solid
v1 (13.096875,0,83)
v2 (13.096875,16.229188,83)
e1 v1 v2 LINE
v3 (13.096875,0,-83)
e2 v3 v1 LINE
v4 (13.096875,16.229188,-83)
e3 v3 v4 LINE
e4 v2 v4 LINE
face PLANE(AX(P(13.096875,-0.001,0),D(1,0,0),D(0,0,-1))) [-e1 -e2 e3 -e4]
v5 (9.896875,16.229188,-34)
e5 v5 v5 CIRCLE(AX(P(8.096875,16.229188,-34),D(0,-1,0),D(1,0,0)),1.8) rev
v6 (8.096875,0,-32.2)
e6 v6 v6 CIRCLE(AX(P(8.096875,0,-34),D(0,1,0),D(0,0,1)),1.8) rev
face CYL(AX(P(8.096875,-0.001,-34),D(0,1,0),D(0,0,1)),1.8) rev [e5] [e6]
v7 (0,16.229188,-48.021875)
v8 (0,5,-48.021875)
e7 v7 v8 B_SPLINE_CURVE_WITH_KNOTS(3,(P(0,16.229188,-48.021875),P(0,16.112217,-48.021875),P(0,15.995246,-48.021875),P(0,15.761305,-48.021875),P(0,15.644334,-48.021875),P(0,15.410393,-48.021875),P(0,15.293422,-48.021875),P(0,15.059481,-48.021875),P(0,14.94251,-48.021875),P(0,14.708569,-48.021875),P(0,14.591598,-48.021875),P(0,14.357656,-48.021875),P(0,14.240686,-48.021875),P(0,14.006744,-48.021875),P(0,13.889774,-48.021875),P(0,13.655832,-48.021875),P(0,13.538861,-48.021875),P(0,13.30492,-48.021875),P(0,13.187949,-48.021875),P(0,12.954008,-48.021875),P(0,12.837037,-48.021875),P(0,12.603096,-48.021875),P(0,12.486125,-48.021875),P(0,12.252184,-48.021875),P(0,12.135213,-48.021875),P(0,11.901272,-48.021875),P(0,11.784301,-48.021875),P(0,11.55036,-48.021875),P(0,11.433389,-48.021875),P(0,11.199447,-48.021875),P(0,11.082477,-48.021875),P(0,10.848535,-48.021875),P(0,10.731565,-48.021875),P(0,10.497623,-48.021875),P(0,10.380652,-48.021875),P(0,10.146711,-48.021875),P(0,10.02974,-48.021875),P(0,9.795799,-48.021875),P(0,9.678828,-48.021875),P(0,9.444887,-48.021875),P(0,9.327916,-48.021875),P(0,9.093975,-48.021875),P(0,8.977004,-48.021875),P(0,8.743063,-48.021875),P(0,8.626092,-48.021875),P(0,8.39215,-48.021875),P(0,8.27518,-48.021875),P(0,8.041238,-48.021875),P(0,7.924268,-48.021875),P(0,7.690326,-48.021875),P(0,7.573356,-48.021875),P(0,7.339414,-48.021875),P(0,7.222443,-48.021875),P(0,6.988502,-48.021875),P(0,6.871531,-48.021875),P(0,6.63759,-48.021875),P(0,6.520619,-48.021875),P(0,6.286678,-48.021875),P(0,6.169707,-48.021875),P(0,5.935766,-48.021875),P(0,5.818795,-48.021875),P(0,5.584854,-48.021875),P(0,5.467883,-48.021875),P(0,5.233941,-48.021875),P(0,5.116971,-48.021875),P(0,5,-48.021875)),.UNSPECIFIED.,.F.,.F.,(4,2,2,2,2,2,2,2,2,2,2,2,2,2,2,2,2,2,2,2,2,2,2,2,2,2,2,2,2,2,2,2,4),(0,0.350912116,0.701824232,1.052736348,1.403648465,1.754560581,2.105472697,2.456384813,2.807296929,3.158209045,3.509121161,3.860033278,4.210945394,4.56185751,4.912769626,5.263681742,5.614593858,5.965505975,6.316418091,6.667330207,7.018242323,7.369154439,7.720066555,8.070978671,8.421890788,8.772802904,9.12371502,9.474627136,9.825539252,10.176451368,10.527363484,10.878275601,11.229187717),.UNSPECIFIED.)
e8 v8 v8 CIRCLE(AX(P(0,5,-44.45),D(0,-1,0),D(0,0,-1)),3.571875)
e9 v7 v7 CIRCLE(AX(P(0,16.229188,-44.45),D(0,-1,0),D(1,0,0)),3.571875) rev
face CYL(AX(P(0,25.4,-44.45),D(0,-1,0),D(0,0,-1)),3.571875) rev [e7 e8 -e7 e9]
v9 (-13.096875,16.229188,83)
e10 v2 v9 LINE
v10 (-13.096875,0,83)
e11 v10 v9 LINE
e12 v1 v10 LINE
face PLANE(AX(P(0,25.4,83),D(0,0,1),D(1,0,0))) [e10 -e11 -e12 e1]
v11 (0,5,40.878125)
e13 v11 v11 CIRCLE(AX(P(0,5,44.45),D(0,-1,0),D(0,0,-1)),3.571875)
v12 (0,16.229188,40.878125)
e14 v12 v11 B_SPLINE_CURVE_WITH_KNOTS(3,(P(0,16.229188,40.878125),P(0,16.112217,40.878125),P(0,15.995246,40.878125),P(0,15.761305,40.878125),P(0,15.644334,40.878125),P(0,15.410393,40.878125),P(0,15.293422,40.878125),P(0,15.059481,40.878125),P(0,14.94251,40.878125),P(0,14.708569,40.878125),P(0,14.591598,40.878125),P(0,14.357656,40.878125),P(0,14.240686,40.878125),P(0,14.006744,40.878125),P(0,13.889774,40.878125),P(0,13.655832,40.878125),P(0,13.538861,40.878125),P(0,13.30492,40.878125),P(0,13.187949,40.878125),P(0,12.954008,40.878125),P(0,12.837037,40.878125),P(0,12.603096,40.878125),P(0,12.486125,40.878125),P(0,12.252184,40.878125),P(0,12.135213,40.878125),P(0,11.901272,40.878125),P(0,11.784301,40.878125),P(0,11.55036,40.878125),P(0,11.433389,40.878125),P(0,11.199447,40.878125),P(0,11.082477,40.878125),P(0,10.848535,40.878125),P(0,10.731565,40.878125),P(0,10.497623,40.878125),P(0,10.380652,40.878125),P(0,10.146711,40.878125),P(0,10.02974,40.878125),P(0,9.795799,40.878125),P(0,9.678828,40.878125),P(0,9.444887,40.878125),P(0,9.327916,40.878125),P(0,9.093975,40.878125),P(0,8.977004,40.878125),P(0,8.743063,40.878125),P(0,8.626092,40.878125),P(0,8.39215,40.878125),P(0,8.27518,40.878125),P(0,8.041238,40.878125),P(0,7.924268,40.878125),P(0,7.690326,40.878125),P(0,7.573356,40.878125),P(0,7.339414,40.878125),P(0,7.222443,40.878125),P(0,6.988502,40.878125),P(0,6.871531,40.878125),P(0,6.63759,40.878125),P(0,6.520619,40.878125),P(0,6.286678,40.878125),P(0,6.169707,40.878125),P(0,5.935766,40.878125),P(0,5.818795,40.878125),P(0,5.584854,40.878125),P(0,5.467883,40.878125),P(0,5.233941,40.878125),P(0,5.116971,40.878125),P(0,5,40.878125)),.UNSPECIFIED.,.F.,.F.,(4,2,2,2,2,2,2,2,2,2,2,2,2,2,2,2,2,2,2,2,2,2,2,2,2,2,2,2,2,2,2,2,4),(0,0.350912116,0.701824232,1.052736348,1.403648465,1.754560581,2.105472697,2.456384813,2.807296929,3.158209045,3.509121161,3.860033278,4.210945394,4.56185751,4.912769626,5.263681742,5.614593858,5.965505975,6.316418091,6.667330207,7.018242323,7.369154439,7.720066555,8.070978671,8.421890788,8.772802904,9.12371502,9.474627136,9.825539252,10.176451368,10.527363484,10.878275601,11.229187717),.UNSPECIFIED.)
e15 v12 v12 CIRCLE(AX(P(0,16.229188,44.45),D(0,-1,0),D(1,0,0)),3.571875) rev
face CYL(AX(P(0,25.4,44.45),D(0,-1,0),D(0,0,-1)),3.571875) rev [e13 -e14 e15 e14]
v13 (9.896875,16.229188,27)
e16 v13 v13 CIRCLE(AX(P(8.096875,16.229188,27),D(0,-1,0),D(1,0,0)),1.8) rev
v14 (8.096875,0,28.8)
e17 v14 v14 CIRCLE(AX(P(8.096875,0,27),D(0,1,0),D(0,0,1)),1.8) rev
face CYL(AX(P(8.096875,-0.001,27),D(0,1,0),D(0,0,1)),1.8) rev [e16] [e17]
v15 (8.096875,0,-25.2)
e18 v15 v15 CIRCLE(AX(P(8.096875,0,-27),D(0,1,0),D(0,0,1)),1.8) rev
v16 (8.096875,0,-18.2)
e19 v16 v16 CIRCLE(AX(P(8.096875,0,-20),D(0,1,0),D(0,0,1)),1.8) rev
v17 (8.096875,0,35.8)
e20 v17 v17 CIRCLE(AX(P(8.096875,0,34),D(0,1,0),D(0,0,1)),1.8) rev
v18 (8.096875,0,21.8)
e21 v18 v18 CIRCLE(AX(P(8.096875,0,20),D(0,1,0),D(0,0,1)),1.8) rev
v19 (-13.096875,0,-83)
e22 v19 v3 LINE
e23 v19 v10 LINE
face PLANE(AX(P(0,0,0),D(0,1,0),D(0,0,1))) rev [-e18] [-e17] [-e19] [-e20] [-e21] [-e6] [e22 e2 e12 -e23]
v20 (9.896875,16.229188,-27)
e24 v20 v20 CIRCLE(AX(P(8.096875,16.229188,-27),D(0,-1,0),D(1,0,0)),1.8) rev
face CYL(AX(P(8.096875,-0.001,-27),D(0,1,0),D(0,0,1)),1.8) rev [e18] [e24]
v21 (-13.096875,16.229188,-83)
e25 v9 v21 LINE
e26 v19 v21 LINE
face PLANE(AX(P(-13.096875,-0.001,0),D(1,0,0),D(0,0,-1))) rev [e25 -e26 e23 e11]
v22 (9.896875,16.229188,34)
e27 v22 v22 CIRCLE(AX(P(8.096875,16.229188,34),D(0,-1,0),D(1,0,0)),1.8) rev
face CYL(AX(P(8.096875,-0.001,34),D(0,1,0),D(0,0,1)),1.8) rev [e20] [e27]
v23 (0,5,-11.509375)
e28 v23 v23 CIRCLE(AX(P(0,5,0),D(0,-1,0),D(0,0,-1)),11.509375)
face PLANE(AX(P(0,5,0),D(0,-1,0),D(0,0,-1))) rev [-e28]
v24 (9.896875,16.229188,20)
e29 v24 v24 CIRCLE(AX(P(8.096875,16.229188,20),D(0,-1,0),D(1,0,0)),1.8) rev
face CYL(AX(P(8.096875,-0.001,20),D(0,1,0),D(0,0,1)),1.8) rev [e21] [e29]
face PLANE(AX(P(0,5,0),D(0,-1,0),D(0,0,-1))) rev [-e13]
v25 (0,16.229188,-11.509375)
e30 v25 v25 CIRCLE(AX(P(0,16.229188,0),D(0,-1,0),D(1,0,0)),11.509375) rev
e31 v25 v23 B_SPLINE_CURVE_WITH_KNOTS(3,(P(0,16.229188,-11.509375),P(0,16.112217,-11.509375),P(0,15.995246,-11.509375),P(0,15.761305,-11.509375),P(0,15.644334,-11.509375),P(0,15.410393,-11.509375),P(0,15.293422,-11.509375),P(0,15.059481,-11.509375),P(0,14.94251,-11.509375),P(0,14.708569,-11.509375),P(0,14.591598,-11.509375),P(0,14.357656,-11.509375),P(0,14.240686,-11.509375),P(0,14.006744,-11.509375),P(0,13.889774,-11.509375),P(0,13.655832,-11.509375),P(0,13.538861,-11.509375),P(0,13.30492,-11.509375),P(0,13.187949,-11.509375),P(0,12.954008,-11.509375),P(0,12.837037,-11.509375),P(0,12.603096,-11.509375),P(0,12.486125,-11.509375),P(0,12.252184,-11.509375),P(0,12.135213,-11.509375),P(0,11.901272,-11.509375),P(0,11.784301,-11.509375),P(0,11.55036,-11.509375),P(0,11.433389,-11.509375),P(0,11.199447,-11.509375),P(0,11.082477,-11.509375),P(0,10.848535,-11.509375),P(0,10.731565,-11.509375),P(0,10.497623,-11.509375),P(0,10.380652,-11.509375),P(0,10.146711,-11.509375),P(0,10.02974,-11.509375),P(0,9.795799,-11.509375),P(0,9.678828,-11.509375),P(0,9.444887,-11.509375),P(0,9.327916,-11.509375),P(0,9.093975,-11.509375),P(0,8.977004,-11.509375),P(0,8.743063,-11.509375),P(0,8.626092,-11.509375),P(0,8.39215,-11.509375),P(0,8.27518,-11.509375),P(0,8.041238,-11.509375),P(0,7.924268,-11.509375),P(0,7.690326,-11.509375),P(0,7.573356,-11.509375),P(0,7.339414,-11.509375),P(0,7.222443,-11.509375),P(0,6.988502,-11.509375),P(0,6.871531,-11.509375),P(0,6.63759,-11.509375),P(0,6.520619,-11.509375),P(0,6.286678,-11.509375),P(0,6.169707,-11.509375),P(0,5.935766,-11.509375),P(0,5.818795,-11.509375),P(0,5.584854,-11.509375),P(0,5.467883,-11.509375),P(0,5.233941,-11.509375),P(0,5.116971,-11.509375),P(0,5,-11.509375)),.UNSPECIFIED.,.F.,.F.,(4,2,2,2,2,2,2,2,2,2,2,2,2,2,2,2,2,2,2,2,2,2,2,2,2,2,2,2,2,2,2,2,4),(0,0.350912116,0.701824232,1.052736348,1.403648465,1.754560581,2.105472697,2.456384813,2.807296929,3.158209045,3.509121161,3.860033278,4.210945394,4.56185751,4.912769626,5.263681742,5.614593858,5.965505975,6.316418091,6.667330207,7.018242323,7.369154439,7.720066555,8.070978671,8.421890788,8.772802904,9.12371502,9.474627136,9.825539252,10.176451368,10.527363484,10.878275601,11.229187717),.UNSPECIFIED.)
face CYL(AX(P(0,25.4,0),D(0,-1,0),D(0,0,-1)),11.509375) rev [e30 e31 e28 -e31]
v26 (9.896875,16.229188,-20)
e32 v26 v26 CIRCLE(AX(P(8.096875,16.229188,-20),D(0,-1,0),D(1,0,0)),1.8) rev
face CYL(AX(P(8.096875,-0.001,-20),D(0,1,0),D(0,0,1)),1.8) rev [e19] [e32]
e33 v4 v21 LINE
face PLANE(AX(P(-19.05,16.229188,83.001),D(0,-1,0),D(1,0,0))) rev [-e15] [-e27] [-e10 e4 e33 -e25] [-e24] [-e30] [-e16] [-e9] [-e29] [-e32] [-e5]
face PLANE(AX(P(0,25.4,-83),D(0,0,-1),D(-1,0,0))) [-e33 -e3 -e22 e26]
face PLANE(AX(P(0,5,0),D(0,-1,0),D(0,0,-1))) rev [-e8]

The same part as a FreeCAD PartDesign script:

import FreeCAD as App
import Part
import Sketcher
Q = App.Units.Quantity

doc = App.newDocument("Part")
body = doc.addObject("PartDesign::Body", "Body")

sketch1 = doc.addObject("Sketcher::SketchObject", "Sketch")
body.addObject(sketch1)
sketch1.AttachmentSupport = (doc.XZ_Plane, [""])
sketch1.MapMode = "FlatFace"
sketch1.addGeometry([
    Part.LineSegment(App.Vector(19.05, 83, 0), App.Vector(19.05, -83, 0)),
    Part.LineSegment(App.Vector(19.05, -83, 0), App.Vector(-19.05, -83, 0)),
    Part.LineSegment(App.Vector(-19.05, -83, 0), App.Vector(-19.05, 83, 0)),
    Part.LineSegment(App.Vector(-19.05, 83, 0), App.Vector(19.05, 83, 0)),
    Part.Circle(App.Vector(0, -44.45, 0), App.Vector(0, 0, 1), 3.571875),
    Part.Circle(App.Vector(0, 0, 0), App.Vector(0, 0, 1), 11.509375),
    Part.Circle(App.Vector(0, 44.45, 0), App.Vector(0, 0, 1), 3.571875),
], False)
sketch1.addConstraint([
    Sketcher.Constraint("Coincident", 0, 2, 1, 1),
    Sketcher.Constraint("Coincident", 1, 2, 2, 1),
    Sketcher.Constraint("Coincident", 2, 2, 3, 1),
    Sketcher.Constraint("Coincident", 3, 2, 0, 1),
    Sketcher.Constraint("Vertical", 0),
    Sketcher.Constraint("Horizontal", 1),
    Sketcher.Constraint("Vertical", 2),
    Sketcher.Constraint("Horizontal", 3),
    Sketcher.Constraint("Coincident", 5, 3, -1, 1),
    Sketcher.Constraint("Equal", 4, 6),
    Sketcher.Constraint("Symmetric", 4, 3, 6, 3, -1, 1),
    Sketcher.Constraint("Symmetric", 0, 2, 2, 2, -1, 1),
    Sketcher.Constraint("PointOnObject", 4, 3, -2),
    Sketcher.Constraint("Diameter", 4, Q("0.28125 in")),
    Sketcher.Constraint("Diameter", 5, Q("0.90625 in")),
    Sketcher.Constraint("DistanceX", 1, 2, 1, 1, Q("1.5 in")),
    Sketcher.Constraint("DistanceY", 4, 3, 6, 3, Q("3.5 in")),
    Sketcher.Constraint("DistanceY", 0, 2, 0, 1, 166.0),
])
pad1 = doc.addObject("PartDesign::Pad", "Pad")
body.addObject(pad1)
pad1.Profile = sketch1
pad1.Length = Q("1 in")
pad1.Reversed = True

sketch2 = doc.addObject("Sketcher::SketchObject", "Sketch001")
body.addObject(sketch2)
sketch2.AttachmentSupport = (doc.XY_Plane, [""])
sketch2.MapMode = "FlatFace"
sketch2.AttachmentOffset = App.Placement(App.Vector(0, 0, -83), App.Rotation())
sketch2.addGeometry([
    Part.LineSegment(App.Vector(19.05, 25.4, 0), App.Vector(19.05, 16.229188, 0)),
    Part.LineSegment(App.Vector(19.05, 16.229188, 0), App.Vector(-19.05, 16.229188, 0)),
    Part.LineSegment(App.Vector(-19.05, 16.229188, 0), App.Vector(-19.05, 25.4, 0)),
    Part.LineSegment(App.Vector(-19.05, 25.4, 0), App.Vector(19.05, 25.4, 0)),
], False)
sketch2.addConstraint([
    Sketcher.Constraint("Coincident", 0, 2, 1, 1),
    Sketcher.Constraint("Coincident", 1, 2, 2, 1),
    Sketcher.Constraint("Coincident", 2, 2, 3, 1),
    Sketcher.Constraint("Coincident", 3, 2, 0, 1),
    Sketcher.Constraint("Vertical", 0),
    Sketcher.Constraint("Horizontal", 1),
    Sketcher.Constraint("Vertical", 2),
    Sketcher.Constraint("Horizontal", 3),
    Sketcher.Constraint("DistanceX", 1, 2, 1, 1, Q("1.5 in")),
    Sketcher.Constraint("DistanceY", -1, 1, 2, 2, Q("1 in")),
    Sketcher.Constraint("DistanceX", -1, 1, 0, 2, Q("0.75 in")),
    Sketcher.Constraint("DistanceY", 0, 2, 0, 1, 9.170812),
])
pocket1 = doc.addObject("PartDesign::Pocket", "Pocket")
body.addObject(pocket1)
pocket1.Profile = sketch2
pocket1.Type = "UpToFirst"
pocket1.Reversed = True

sketch3 = doc.addObject("Sketcher::SketchObject", "Sketch002")
body.addObject(sketch3)
sketch3.AttachmentSupport = (doc.XZ_Plane, [""])
sketch3.MapMode = "FlatFace"
sketch3.AttachmentOffset = App.Placement(App.Vector(0, 0, -1 * 25.4), App.Rotation())
sketch3.addGeometry(Part.Circle(App.Vector(8.096875, 34, 0), App.Vector(0, 0, 1), 1.8), False)
sketch3.addConstraint([
    Sketcher.Constraint("Diameter", 0, 3.6),
    Sketcher.Constraint("DistanceY", -1, 1, 0, 3, 34.0),
    Sketcher.Constraint("DistanceX", -1, 1, 0, 3, 8.096875),
])
pocket2 = doc.addObject("PartDesign::Pocket", "Pocket001")
body.addObject(pocket2)
pocket2.Profile = sketch3
pocket2.Length = Q("1 in")
pocket2.Reversed = True

sketch4 = doc.addObject("Sketcher::SketchObject", "Sketch003")
body.addObject(sketch4)
sketch4.AttachmentSupport = (doc.XZ_Plane, [""])
sketch4.MapMode = "FlatFace"
sketch4.AttachmentOffset = App.Placement(App.Vector(0, 0, -1 * 25.4), App.Rotation())
sketch4.addGeometry(Part.Circle(App.Vector(8.096875, 27, 0), App.Vector(0, 0, 1), 1.8), False)
sketch4.addConstraint([
    Sketcher.Constraint("Diameter", 0, 3.6),
    Sketcher.Constraint("DistanceY", -1, 1, 0, 3, 27.0),
    Sketcher.Constraint("DistanceX", -1, 1, 0, 3, 8.096875),
])
pocket3 = doc.addObject("PartDesign::Pocket", "Pocket002")
body.addObject(pocket3)
pocket3.Profile = sketch4
pocket3.Length = Q("1 in")
pocket3.Reversed = True

sketch5 = doc.addObject("Sketcher::SketchObject", "Sketch004")
body.addObject(sketch5)
sketch5.AttachmentSupport = (doc.XZ_Plane, [""])
sketch5.MapMode = "FlatFace"
sketch5.AttachmentOffset = App.Placement(App.Vector(0, 0, -1 * 25.4), App.Rotation())
sketch5.addGeometry(Part.Circle(App.Vector(8.096875, 20, 0), App.Vector(0, 0, 1), 1.8), False)
sketch5.addConstraint([
    Sketcher.Constraint("Diameter", 0, 3.6),
    Sketcher.Constraint("DistanceY", -1, 1, 0, 3, 20.0),
    Sketcher.Constraint("DistanceX", -1, 1, 0, 3, 8.096875),
])
pocket4 = doc.addObject("PartDesign::Pocket", "Pocket003")
body.addObject(pocket4)
pocket4.Profile = sketch5
pocket4.Length = Q("1 in")
pocket4.Reversed = True

sketch6 = doc.addObject("Sketcher::SketchObject", "Sketch005")
body.addObject(sketch6)
sketch6.AttachmentSupport = (doc.XZ_Plane, [""])
sketch6.MapMode = "FlatFace"
sketch6.AttachmentOffset = App.Placement(App.Vector(0, 0, -1 * 25.4), App.Rotation())
sketch6.addGeometry(Part.Circle(App.Vector(8.096875, -20, 0), App.Vector(0, 0, 1), 1.8), False)
sketch6.addConstraint([
    Sketcher.Constraint("Diameter", 0, 3.6),
    Sketcher.Constraint("DistanceY", 0, 3, -1, 1, 20.0),
    Sketcher.Constraint("DistanceX", -1, 1, 0, 3, 8.096875),
])
pocket5 = doc.addObject("PartDesign::Pocket", "Pocket004")
body.addObject(pocket5)
pocket5.Profile = sketch6
pocket5.Length = Q("1 in")
pocket5.Reversed = True

sketch7 = doc.addObject("Sketcher::SketchObject", "Sketch006")
body.addObject(sketch7)
sketch7.AttachmentSupport = (doc.XZ_Plane, [""])
sketch7.MapMode = "FlatFace"
sketch7.AttachmentOffset = App.Placement(App.Vector(0, 0, -1 * 25.4), App.Rotation())
sketch7.addGeometry(Part.Circle(App.Vector(8.096875, -27, 0), App.Vector(0, 0, 1), 1.8), False)
sketch7.addConstraint([
    Sketcher.Constraint("Diameter", 0, 3.6),
    Sketcher.Constraint("DistanceY", 0, 3, -1, 1, 27.0),
    Sketcher.Constraint("DistanceX", -1, 1, 0, 3, 8.096875),
])
pocket6 = doc.addObject("PartDesign::Pocket", "Pocket005")
body.addObject(pocket6)
pocket6.Profile = sketch7
pocket6.Length = Q("1 in")
pocket6.Reversed = True

sketch8 = doc.addObject("Sketcher::SketchObject", "Sketch007")
body.addObject(sketch8)
sketch8.AttachmentSupport = (doc.XZ_Plane, [""])
sketch8.MapMode = "FlatFace"
sketch8.AttachmentOffset = App.Placement(App.Vector(0, 0, -1 * 25.4), App.Rotation())
sketch8.addGeometry(Part.Circle(App.Vector(8.096875, -34, 0), App.Vector(0, 0, 1), 1.8), False)
sketch8.addConstraint([
    Sketcher.Constraint("Diameter", 0, 3.6),
    Sketcher.Constraint("DistanceY", 0, 3, -1, 1, 34.0),
    Sketcher.Constraint("DistanceX", -1, 1, 0, 3, 8.096875),
])
pocket7 = doc.addObject("PartDesign::Pocket", "Pocket006")
body.addObject(pocket7)
pocket7.Profile = sketch8
pocket7.Length = Q("1 in")
pocket7.Reversed = True

sketch9 = doc.addObject("Sketcher::SketchObject", "Sketch008")
body.addObject(sketch9)
sketch9.AttachmentSupport = (doc.XZ_Plane, [""])
sketch9.MapMode = "FlatFace"
sketch9.AttachmentOffset = App.Placement(App.Vector(0, 0, -1 * 25.4), App.Rotation())
sketch9.addGeometry([
    Part.LineSegment(App.Vector(-19.05, -83, 0), App.Vector(-19.05, 83, 0)),
    Part.LineSegment(App.Vector(-19.05, 83, 0), App.Vector(-13.096875, 83, 0)),
    Part.LineSegment(App.Vector(-13.096875, 83, 0), App.Vector(-13.096875, -83, 0)),
    Part.LineSegment(App.Vector(-13.096875, -83, 0), App.Vector(-19.05, -83, 0)),
], False)
sketch9.addConstraint([
    Sketcher.Constraint("Coincident", 0, 2, 1, 1),
    Sketcher.Constraint("Coincident", 1, 2, 2, 1),
    Sketcher.Constraint("Coincident", 2, 2, 3, 1),
    Sketcher.Constraint("Coincident", 3, 2, 0, 1),
    Sketcher.Constraint("Vertical", 0),
    Sketcher.Constraint("Horizontal", 1),
    Sketcher.Constraint("Vertical", 2),
    Sketcher.Constraint("Horizontal", 3),
    Sketcher.Constraint("DistanceX", 1, 1, 1, 2, Q("0.234375 in")),
    Sketcher.Constraint("DistanceX", 0, 2, -1, 1, Q("0.75 in")),
    Sketcher.Constraint("DistanceY", 0, 1, 0, 2, 166.0),
    Sketcher.Constraint("DistanceY", -1, 1, 0, 2, 83.0),
])
pocket8 = doc.addObject("PartDesign::Pocket", "Pocket007")
body.addObject(pocket8)
pocket8.Profile = sketch9
pocket8.Length = Q("1 in")
pocket8.Reversed = True

sketch10 = doc.addObject("Sketcher::SketchObject", "Sketch009")
body.addObject(sketch10)
sketch10.AttachmentSupport = (doc.XZ_Plane, [""])
sketch10.MapMode = "FlatFace"
sketch10.AttachmentOffset = App.Placement(App.Vector(0, 0, -1 * 25.4), App.Rotation())
sketch10.addGeometry([
    Part.LineSegment(App.Vector(13.096875, -83, 0), App.Vector(13.096875, 83, 0)),
    Part.LineSegment(App.Vector(13.096875, 83, 0), App.Vector(19.05, 83, 0)),
    Part.LineSegment(App.Vector(19.05, 83, 0), App.Vector(19.05, -83, 0)),
    Part.LineSegment(App.Vector(19.05, -83, 0), App.Vector(13.096875, -83, 0)),
], False)
sketch10.addConstraint([
    Sketcher.Constraint("Coincident", 0, 2, 1, 1),
    Sketcher.Constraint("Coincident", 1, 2, 2, 1),
    Sketcher.Constraint("Coincident", 2, 2, 3, 1),
    Sketcher.Constraint("Coincident", 3, 2, 0, 1),
    Sketcher.Constraint("Vertical", 0),
    Sketcher.Constraint("Horizontal", 1),
    Sketcher.Constraint("Vertical", 2),
    Sketcher.Constraint("Horizontal", 3),
    Sketcher.Constraint("DistanceX", 1, 1, 1, 2, Q("0.234375 in")),
    Sketcher.Constraint("DistanceX", -1, 1, 1, 2, Q("0.75 in")),
    Sketcher.Constraint("DistanceY", 0, 1, 0, 2, 166.0),
    Sketcher.Constraint("DistanceY", -1, 1, 0, 2, 83.0),
])
pocket9 = doc.addObject("PartDesign::Pocket", "Pocket008")
body.addObject(pocket9)
pocket9.Profile = sketch10
pocket9.Length = Q("1 in")
pocket9.Reversed = True

sketch11 = doc.addObject("Sketcher::SketchObject", "Sketch010")
body.addObject(sketch11)
sketch11.AttachmentSupport = (doc.XZ_Plane, [""])
sketch11.MapMode = "FlatFace"
sketch11.addGeometry([
    Part.Circle(App.Vector(0, 44.45, 0), App.Vector(0, 0, 1), 3.571875),
    Part.Circle(App.Vector(0, -44.45, 0), App.Vector(0, 0, 1), 3.571875),
    Part.Circle(App.Vector(0, 0, 0), App.Vector(0, 0, 1), 11.509375),
], False)
sketch11.addConstraint([
    Sketcher.Constraint("Coincident", 2, 3, -1, 1),
    Sketcher.Constraint("Equal", 0, 1),
    Sketcher.Constraint("Symmetric", 0, 3, 1, 3, -1, 1),
    Sketcher.Constraint("PointOnObject", 0, 3, -2),
    Sketcher.Constraint("Diameter", 0, Q("0.28125 in")),
    Sketcher.Constraint("Diameter", 2, Q("0.90625 in")),
    Sketcher.Constraint("DistanceY", 1, 3, 0, 3, Q("3.5 in")),
])
pad2 = doc.addObject("PartDesign::Pad", "Pad001")
body.addObject(pad2)
pad2.Profile = sketch11
pad2.Length = 5
pad2.Reversed = True

doc.recompute()
